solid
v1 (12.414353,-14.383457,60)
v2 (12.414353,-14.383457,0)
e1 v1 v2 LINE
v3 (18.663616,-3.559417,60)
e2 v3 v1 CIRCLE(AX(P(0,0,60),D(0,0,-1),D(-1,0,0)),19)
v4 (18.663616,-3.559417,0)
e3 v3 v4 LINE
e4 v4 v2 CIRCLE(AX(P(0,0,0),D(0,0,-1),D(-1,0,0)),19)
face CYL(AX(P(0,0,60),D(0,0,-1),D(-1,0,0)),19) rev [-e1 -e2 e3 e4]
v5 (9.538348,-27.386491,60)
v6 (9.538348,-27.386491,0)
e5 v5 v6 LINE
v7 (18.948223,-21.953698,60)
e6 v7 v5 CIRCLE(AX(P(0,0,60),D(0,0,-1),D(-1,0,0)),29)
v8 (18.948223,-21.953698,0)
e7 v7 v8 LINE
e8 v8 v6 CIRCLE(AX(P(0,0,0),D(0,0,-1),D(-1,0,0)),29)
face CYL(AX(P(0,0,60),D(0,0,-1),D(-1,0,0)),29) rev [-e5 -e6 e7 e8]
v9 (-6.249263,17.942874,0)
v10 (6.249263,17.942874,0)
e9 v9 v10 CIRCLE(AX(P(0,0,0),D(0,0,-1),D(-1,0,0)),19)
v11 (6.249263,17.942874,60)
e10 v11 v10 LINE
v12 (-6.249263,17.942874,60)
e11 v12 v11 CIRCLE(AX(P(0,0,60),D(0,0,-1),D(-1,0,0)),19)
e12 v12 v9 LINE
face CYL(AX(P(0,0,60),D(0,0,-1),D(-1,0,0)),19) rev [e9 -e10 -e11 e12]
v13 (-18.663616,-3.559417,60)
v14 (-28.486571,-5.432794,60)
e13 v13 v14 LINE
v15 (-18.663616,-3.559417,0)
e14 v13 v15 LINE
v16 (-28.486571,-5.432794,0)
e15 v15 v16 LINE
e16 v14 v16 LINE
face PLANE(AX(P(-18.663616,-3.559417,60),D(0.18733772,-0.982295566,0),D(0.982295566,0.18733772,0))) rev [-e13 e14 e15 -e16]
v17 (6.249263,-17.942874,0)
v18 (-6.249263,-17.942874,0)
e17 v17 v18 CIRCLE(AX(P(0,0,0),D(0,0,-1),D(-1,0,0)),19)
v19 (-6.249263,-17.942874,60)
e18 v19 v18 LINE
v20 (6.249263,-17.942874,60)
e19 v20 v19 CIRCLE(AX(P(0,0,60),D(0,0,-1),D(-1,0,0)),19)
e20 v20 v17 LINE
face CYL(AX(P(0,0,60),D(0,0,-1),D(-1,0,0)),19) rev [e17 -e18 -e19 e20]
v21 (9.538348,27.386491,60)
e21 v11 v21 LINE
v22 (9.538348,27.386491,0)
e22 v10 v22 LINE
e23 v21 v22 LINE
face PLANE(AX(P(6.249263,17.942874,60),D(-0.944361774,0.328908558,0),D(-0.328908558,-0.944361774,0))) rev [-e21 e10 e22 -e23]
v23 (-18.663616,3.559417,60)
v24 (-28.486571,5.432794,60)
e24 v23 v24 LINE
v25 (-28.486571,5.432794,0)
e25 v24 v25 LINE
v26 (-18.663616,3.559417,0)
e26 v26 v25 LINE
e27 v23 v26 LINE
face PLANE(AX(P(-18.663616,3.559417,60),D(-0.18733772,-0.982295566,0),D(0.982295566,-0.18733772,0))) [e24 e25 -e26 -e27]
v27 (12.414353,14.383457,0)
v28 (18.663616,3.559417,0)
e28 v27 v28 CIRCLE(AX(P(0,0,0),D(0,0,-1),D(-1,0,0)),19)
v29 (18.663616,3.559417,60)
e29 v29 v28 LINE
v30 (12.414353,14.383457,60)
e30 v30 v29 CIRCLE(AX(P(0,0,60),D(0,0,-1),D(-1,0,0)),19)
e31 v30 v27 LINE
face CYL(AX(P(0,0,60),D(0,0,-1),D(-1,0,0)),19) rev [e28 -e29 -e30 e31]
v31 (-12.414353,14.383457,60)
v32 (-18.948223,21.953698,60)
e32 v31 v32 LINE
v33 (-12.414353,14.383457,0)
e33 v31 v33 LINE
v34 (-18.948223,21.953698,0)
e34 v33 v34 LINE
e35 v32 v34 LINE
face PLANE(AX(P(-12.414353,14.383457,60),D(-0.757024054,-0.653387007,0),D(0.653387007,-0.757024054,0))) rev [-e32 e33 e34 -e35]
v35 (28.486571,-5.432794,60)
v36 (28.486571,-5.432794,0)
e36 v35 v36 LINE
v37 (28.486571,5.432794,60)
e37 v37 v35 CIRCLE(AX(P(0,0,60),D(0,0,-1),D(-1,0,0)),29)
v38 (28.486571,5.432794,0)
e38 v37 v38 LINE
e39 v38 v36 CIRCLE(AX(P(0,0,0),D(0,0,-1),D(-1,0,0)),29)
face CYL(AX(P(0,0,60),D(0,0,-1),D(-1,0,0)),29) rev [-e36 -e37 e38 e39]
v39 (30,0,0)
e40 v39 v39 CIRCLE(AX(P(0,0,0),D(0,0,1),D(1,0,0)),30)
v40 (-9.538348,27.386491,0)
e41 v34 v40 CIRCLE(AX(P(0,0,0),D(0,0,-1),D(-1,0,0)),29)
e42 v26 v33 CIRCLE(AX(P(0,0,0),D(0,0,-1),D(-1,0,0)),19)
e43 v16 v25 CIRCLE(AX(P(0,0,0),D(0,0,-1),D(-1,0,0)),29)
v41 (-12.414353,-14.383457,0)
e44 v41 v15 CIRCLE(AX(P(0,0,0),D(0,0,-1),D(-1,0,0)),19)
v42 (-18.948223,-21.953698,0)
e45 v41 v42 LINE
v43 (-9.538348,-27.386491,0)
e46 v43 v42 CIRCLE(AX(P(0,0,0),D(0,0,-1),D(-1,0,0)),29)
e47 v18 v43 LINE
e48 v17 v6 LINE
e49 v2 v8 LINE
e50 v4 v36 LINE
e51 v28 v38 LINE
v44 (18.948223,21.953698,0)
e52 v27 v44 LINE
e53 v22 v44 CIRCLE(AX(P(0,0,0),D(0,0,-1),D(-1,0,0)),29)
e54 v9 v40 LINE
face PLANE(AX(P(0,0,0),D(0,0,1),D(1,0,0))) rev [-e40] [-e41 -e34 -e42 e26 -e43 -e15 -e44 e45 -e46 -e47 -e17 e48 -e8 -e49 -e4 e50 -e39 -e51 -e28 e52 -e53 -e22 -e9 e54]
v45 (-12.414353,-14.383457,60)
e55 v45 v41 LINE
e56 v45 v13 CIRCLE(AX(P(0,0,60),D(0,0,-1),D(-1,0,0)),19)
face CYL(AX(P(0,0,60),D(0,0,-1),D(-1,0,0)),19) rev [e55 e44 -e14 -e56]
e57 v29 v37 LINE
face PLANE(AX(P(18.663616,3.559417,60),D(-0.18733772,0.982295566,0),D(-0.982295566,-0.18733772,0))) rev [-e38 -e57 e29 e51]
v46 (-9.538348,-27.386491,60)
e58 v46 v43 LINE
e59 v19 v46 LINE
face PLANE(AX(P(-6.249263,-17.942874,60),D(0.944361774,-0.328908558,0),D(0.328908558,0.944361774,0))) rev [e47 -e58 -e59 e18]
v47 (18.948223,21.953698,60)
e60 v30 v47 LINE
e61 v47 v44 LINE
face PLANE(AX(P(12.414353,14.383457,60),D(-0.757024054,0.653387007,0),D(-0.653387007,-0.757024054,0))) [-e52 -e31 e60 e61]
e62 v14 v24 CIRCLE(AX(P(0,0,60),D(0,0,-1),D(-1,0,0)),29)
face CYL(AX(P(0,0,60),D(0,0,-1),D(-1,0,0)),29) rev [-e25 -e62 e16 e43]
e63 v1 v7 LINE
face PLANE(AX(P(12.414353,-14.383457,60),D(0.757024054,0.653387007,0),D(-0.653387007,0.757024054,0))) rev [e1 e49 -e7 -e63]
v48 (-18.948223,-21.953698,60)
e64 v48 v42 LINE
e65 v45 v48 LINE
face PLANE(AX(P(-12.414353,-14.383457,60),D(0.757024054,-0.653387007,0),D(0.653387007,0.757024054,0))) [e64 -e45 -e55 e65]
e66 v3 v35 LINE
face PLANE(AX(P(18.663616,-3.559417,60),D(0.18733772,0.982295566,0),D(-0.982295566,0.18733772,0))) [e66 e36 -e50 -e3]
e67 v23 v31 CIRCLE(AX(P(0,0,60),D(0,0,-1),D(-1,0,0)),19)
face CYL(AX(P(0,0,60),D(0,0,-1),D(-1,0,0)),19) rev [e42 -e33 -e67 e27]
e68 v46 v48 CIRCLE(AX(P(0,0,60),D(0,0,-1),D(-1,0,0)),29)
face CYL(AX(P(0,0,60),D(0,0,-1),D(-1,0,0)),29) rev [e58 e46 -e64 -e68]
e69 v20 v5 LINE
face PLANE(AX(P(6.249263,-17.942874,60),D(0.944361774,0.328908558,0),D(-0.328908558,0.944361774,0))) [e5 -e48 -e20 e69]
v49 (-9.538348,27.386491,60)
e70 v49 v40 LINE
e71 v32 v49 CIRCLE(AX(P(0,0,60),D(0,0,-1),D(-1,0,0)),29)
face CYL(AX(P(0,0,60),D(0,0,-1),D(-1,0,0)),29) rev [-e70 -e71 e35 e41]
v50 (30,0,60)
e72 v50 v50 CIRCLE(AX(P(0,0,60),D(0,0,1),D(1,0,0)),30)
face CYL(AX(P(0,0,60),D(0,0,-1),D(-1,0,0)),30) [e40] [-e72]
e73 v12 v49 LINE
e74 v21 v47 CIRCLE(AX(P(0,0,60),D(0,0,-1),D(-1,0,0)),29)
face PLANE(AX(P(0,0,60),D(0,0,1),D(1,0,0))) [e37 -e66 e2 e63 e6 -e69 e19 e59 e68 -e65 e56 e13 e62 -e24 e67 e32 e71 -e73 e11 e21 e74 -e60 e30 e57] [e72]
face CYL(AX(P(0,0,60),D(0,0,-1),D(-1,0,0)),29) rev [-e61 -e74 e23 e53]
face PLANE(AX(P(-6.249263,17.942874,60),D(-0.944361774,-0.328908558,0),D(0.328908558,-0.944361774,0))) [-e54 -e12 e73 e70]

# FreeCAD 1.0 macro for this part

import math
import FreeCAD as App
import Part
import Sketcher
from FreeCAD import Vector

doc = App.newDocument("Part")
body = doc.addObject("PartDesign::Body", "Body")

# Sketch on XY plane
sketch1 = doc.addObject("Sketcher::SketchObject", "Sketch")
body.addObject(sketch1)
sketch1.AttachmentSupport = (doc.XY_Plane, [""])
sketch1.MapMode = "FlatFace"
sketch1.addGeometry(Part.Circle(Vector(0, 0, 0), Vector(0, 0, 1), 30), False)
sketch1.addConstraint([
    Sketcher.Constraint("Coincident", 0, 3, -1, 1),
    Sketcher.Constraint("Diameter", 0, 60.0),
])
pad1 = doc.addObject("PartDesign::Pad", "Pad")
body.addObject(pad1)
pad1.Profile = sketch1
pad1.Length = 60

# Sketch on XY plane
sketch2 = doc.addObject("Sketcher::SketchObject", "Sketch001")
body.addObject(sketch2)
sketch2.AttachmentSupport = (doc.XY_Plane, [""])
sketch2.MapMode = "FlatFace"
sketch2.addGeometry([
    Part.LineSegment(Vector(6, 18, 0), Vector(10, 27, 0)),  # 0
    Part.ArcOfCircle(Part.Circle(Vector(0, 0, 0), Vector(0, 0, 1), 29), math.radians(49), math.radians(71)),  # 1
    Part.LineSegment(Vector(19, 22, 0), Vector(12, 14, 0)),  # 2
    Part.ArcOfCircle(Part.Circle(Vector(0, 0, 0), Vector(0, 0, 1), 19), math.radians(11), math.radians(49)),  # 3
    Part.LineSegment(Vector(19, 4, 0), Vector(28, 5, 0)),  # 4
    Part.ArcOfCircle(Part.Circle(Vector(0, 0, 0), Vector(0, 0, 1), 29), math.radians(-11), math.radians(11)),  # 5
    Part.LineSegment(Vector(28, -5, 0), Vector(19, -4, 0)),  # 6
    Part.ArcOfCircle(Part.Circle(Vector(0, 0, 0), Vector(0, 0, 1), 19), math.radians(-49), math.radians(-11)),  # 7
    Part.LineSegment(Vector(12, -14, 0), Vector(19, -22, 0)),  # 8
    Part.ArcOfCircle(Part.Circle(Vector(0, 0, 0), Vector(0, 0, 1), 29), math.radians(-71), math.radians(-49)),  # 9
    Part.LineSegment(Vector(10, -27, 0), Vector(6, -18, 0)),  # 10
    Part.ArcOfCircle(Part.Circle(Vector(0, 0, 0), Vector(0, 0, 1), 19), math.radians(-109), math.radians(-71)),  # 11
    Part.LineSegment(Vector(-6, -18, 0), Vector(-10, -27, 0)),  # 12
    Part.ArcOfCircle(Part.Circle(Vector(0, 0, 0), Vector(0, 0, 1), 29), math.radians(-131), math.radians(-109)),  # 13
    Part.LineSegment(Vector(-19, -22, 0), Vector(-12, -14, 0)),  # 14
    Part.ArcOfCircle(Part.Circle(Vector(0, 0, 0), Vector(0, 0, 1), 19), math.radians(-169), math.radians(-131)),  # 15
    Part.LineSegment(Vector(-19, -4, 0), Vector(-28, -5, 0)),  # 16
    Part.ArcOfCircle(Part.Circle(Vector(0, 0, 0), Vector(0, 0, 1), 29), math.radians(169), math.radians(191)),  # 17
    Part.LineSegment(Vector(-28, 5, 0), Vector(-19, 4, 0)),  # 18
    Part.ArcOfCircle(Part.Circle(Vector(0, 0, 0), Vector(0, 0, 1), 19), math.radians(131), math.radians(169)),  # 19
    Part.LineSegment(Vector(-12, 14, 0), Vector(-19, 22, 0)),  # 20
    Part.ArcOfCircle(Part.Circle(Vector(0, 0, 0), Vector(0, 0, 1), 29), math.radians(109), math.radians(131)),  # 21
    Part.LineSegment(Vector(-10, 27, 0), Vector(-6, 18, 0)),  # 22
    Part.ArcOfCircle(Part.Circle(Vector(0, 0, 0), Vector(0, 0, 1), 19), math.radians(71), math.radians(109)),  # 23
], False)
sketch2.addConstraint([
    Sketcher.Constraint("Coincident", 0, 2, 1, 2),
    Sketcher.Constraint("Coincident", 1, 1, 2, 1),
    Sketcher.Constraint("Coincident", 2, 2, 3, 2),
    Sketcher.Constraint("Coincident", 3, 1, 4, 1),
    Sketcher.Constraint("Coincident", 4, 2, 5, 2),
    Sketcher.Constraint("Coincident", 5, 1, 6, 1),
    Sketcher.Constraint("Coincident", 6, 2, 7, 2),
    Sketcher.Constraint("Coincident", 7, 1, 8, 1),
    Sketcher.Constraint("Coincident", 8, 2, 9, 2),
    Sketcher.Constraint("Coincident", 9, 1, 10, 1),
    Sketcher.Constraint("Coincident", 10, 2, 11, 2),
    Sketcher.Constraint("Coincident", 11, 1, 12, 1),
    Sketcher.Constraint("Coincident", 12, 2, 13, 2),
    Sketcher.Constraint("Coincident", 13, 1, 14, 1),
    Sketcher.Constraint("Coincident", 14, 2, 15, 2),
    Sketcher.Constraint("Coincident", 15, 1, 16, 1),
    Sketcher.Constraint("Coincident", 16, 2, 17, 2),
    Sketcher.Constraint("Coincident", 17, 1, 18, 1),
    Sketcher.Constraint("Coincident", 18, 2, 19, 2),
    Sketcher.Constraint("Coincident", 19, 1, 20, 1),
    Sketcher.Constraint("Coincident", 20, 2, 21, 2),
    Sketcher.Constraint("Coincident", 21, 1, 22, 1),
    Sketcher.Constraint("Coincident", 22, 2, 23, 2),
    Sketcher.Constraint("Coincident", 23, 1, 0, 1),
    Sketcher.Constraint("Coincident", 1, 3, -1, 1),
    Sketcher.Constraint("Coincident", 3, 3, -1, 1),
    Sketcher.Constraint("Coincident", 5, 3, -1, 1),
    Sketcher.Constraint("Coincident", 7, 3, -1, 1),
    Sketcher.Constraint("Coincident", 9, 3, -1, 1),
    Sketcher.Constraint("Coincident", 11, 3, -1, 1),
    Sketcher.Constraint("Coincident", 13, 3, -1, 1),
    Sketcher.Constraint("Coincident", 15, 3, -1, 1),
    Sketcher.Constraint("Coincident", 17, 3, -1, 1),
    Sketcher.Constraint("Coincident", 19, 3, -1, 1),
    Sketcher.Constraint("Coincident", 21, 3, -1, 1),
    Sketcher.Constraint("Coincident", 23, 3, -1, 1),
    Sketcher.Constraint("Equal", 1, 5),
    Sketcher.Constraint("Equal", 3, 7),
    Sketcher.Constraint("Equal", 5, 9),
    Sketcher.Constraint("Equal", 7, 11),
    Sketcher.Constraint("Equal", 9, 13),
    Sketcher.Constraint("Equal", 11, 15),
    Sketcher.Constraint("Equal", 13, 17),
    Sketcher.Constraint("Equal", 15, 19),
    Sketcher.Constraint("Equal", 17, 21),
    Sketcher.Constraint("Equal", 19, 23),
    Sketcher.Constraint("Parallel", 0, 12),
    Sketcher.Constraint("Parallel", 2, 14),
    Sketcher.Constraint("Parallel", 4, 16),
    Sketcher.Constraint("Parallel", 6, 18),
    Sketcher.Constraint("Parallel", 8, 20),
    Sketcher.Constraint("Parallel", 10, 22),
    Sketcher.Constraint("Horizontal", 10, 2, 11, 1),
    Sketcher.Constraint("Horizontal", 9, 1, 12, 2),
    Sketcher.Constraint("Horizontal", 8, 2, 13, 1),
    Sketcher.Constraint("Horizontal", 7, 1, 14, 2),
    Sketcher.Constraint("Horizontal", 6, 2, 15, 1),
    Sketcher.Constraint("Horizontal", 5, 1, 16, 2),
    Sketcher.Constraint("Horizontal", 4, 2, 17, 1),
    Sketcher.Constraint("Horizontal", 2, 2, 19, 1),
    Sketcher.Constraint("Horizontal", 0, 2, 21, 1),
    Sketcher.Constraint("Vertical", 4, 2, 5, 1),
    Sketcher.Constraint("Vertical", 2, 2, 7, 1),
    Sketcher.Constraint("Vertical", 0, 2, 9, 1),
    Sketcher.Constraint("Radius", 1, 29.0),
    Sketcher.Constraint("Radius", 3, 19.0),
    Sketcher.Constraint("DistanceX", 12, 2, 7, 1, 21.952701),
    Sketcher.Constraint("DistanceX", -1, 1, 0, 2, 9.538348),
    Sketcher.Constraint("DistanceX", -1, 1, 4, 2, 28.486571),
    Sketcher.Constraint("DistanceX", 2, 2, 1, 1, 6.53387),
    Sketcher.Constraint("DistanceY", 3, 1, 2, 2, 10.82404),
    Sketcher.Constraint("DistanceX", 10, 2, 7, 1, 6.165091),
])
pocket1 = doc.addObject("PartDesign::Pocket", "Pocket")
body.addObject(pocket1)
pocket1.Profile = sketch2
pocket1.Type = "ThroughAll"
pocket1.Reversed = True

doc.recompute()
